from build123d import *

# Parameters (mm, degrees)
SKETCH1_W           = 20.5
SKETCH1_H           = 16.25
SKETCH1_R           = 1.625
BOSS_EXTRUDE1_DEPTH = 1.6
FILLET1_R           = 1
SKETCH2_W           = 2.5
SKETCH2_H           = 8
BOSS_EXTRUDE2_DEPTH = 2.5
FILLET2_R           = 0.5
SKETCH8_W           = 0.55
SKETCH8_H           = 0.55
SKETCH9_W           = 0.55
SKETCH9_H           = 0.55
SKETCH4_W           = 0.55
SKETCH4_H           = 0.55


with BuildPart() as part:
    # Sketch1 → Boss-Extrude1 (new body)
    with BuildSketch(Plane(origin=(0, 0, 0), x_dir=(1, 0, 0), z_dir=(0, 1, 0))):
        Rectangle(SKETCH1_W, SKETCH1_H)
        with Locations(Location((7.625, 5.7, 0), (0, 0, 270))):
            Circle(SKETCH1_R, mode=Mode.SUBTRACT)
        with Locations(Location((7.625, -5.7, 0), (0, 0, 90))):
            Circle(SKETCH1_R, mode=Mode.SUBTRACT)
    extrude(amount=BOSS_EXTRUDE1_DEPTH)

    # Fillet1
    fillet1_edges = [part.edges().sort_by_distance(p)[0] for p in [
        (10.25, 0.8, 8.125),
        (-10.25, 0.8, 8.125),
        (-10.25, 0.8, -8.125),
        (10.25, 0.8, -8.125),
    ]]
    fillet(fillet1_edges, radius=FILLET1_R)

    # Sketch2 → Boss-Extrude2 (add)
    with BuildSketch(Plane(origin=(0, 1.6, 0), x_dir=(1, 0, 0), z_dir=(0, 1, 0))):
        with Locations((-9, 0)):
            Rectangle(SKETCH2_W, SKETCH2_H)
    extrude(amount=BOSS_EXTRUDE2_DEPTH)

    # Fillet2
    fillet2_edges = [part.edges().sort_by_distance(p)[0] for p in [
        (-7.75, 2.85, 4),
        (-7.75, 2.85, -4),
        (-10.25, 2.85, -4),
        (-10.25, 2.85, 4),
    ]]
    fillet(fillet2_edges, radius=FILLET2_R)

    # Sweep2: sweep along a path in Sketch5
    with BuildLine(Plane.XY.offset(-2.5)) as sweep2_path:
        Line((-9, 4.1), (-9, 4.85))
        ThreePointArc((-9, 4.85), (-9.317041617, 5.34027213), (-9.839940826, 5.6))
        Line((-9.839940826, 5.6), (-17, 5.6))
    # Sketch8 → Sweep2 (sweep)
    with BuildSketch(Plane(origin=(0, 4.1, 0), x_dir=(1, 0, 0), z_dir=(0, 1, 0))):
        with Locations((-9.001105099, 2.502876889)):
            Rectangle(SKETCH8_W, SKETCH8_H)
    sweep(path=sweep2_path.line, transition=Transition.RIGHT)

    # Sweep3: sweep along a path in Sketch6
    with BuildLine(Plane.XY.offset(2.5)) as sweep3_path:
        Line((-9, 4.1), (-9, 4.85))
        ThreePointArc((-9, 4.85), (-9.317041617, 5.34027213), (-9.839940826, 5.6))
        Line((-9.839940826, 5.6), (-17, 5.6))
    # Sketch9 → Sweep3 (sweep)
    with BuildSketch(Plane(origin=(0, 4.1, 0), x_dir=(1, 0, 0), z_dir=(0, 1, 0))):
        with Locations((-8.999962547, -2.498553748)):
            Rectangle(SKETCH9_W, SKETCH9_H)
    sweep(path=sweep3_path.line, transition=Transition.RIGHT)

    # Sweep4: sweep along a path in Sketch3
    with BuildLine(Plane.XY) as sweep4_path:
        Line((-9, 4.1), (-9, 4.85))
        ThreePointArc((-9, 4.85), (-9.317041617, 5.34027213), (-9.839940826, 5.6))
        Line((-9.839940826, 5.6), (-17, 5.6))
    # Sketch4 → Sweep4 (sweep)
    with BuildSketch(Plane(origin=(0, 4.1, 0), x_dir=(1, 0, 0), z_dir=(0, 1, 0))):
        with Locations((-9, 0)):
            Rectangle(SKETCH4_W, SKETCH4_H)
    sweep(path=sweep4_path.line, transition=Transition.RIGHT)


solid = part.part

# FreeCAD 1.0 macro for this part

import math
import FreeCAD as App
import Part
import Sketcher
from FreeCAD import Vector


def edges_at(feature, points):
    """Names of the edges that pass closest to the given points."""
    edges = feature.Shape.Edges
    near = lambda p: min(range(len(edges)), key=lambda i: edges[i].distToShape(Part.Vertex(*p))[0])
    return sorted({f"Edge{near(p) + 1}" for p in points})


def add_polygon(sketch, points):
    """Adds a closed chain of lines whose ends are joined by coincident constraints."""
    first, n = sketch.GeometryCount, len(points)
    for a, b in zip(points, points[1:] + points[:1]):
        sketch.addGeometry(Part.LineSegment(App.Vector(*a, 0), App.Vector(*b, 0)), False)
    for i in range(n):
        sketch.addConstraint(Sketcher.Constraint("Coincident", first + i, 2, first + (i + 1) % n, 1))

doc = App.newDocument("Part")
body = doc.addObject("PartDesign::Body", "Body")

# Sketch on XZ plane
sketch1 = body.newObject("Sketcher::SketchObject", "Sketch")
sketch1.AttachmentSupport = (doc.getObject("XZ_Plane"), [""])
sketch1.MapMode = "FlatFace"
add_polygon(sketch1, [(-10.2, -8.1), (-10.2, 8.1), (10.2, 8.1), (10.2, -8.1)])  # lines 0-3
sketch1.addGeometry(Part.Circle(Vector(7.6, 5.7, 0), Vector(0, 0, 1), 1.6), False)  # 4
sketch1.addGeometry(Part.Circle(Vector(7.6, -5.7, 0), Vector(0, 0, 1), 1.6), False)  # 5
sketch1.addConstraint([
    Sketcher.Constraint("Vertical", 0),
    Sketcher.Constraint("Horizontal", 1),
    Sketcher.Constraint("Vertical", 2),
    Sketcher.Constraint("Horizontal", 3),
    Sketcher.Constraint("Equal", 4, 5),
    Sketcher.Constraint("Symmetric", 0, 2, 2, 2, -1, 1),
    Sketcher.Constraint("Symmetric", 4, 3, 5, 3, -1),
    Sketcher.Constraint("Diameter", 4, 3.25),
    Sketcher.Constraint("DistanceX", 1, 1, 1, 2, 20.5),
    Sketcher.Constraint("DistanceY", 0, 1, 0, 2, 16.25),
    Sketcher.Constraint("DistanceY", -1, 1, 4, 3, 5.7),
    Sketcher.Constraint("DistanceX", -1, 1, 4, 3, 7.625),
])
pad1 = body.newObject("PartDesign::Pad", "Pad")
pad1.Profile = sketch1
pad1.Length = 1.6
pad1.Reversed = True
doc.recompute()

fillet = body.newObject("PartDesign::Fillet", "Fillet")
fillet.Base = (pad1, edges_at(pad1, [
    (10.25, 0.8, 8.125),
    (-10.25, 0.8, 8.125),
    (-10.25, 0.8, -8.125),
    (10.25, 0.8, -8.125),
]))
fillet.Radius = 1

# Sketch on XZ plane
sketch2 = body.newObject("Sketcher::SketchObject", "Sketch001")
sketch2.AttachmentSupport = (doc.getObject("XZ_Plane"), [""])
sketch2.MapMode = "FlatFace"
sketch2.AttachmentOffset = App.Placement(Vector(0, 0, -1.6), App.Rotation())
add_polygon(sketch2, [(-10.2, -4), (-10.2, 4), (-7.8, 4), (-7.8, -4)])  # lines 0-3
sketch2.addConstraint([
    Sketcher.Constraint("Vertical", 0),
    Sketcher.Constraint("Horizontal", 1),
    Sketcher.Constraint("Vertical", 2),
    Sketcher.Constraint("Horizontal", 3),
    Sketcher.Constraint("DistanceY", 0, 1, 0, 2, 8.0),
    Sketcher.Constraint("DistanceX", 1, 1, 1, 2, 2.5),
    Sketcher.Constraint("DistanceY", -1, 1, 0, 2, 4.0),
    Sketcher.Constraint("DistanceX", 0, 2, -1, 1, 10.25),
])
pad2 = body.newObject("PartDesign::Pad", "Pad001")
pad2.Profile = sketch2
pad2.Length = 2.5
pad2.Reversed = True
doc.recompute()

fillet2 = body.newObject("PartDesign::Fillet", "Fillet001")
fillet2.Base = (pad2, edges_at(pad2, [
    (-7.75, 2.85, 4),
    (-7.75, 2.85, -4),
    (-10.25, 2.85, -4),
    (-10.25, 2.85, 4),
]))
fillet2.Radius = 0.5

# Sketch on XZ plane
sketch3 = body.newObject("Sketcher::SketchObject", "Sketch002")
sketch3.AttachmentSupport = (doc.getObject("XZ_Plane"), [""])
sketch3.MapMode = "FlatFace"
sketch3.AttachmentOffset = App.Placement(Vector(0, 0, -4.1), App.Rotation())
add_polygon(sketch3, [(-9.3, -2.8), (-9.3, -2.2), (-8.7, -2.2), (-8.7, -2.8)])  # lines 0-3
sketch3.addConstraint([
    Sketcher.Constraint("Vertical", 0),
    Sketcher.Constraint("Horizontal", 1),
    Sketcher.Constraint("Vertical", 2),
    Sketcher.Constraint("Horizontal", 3),
    Sketcher.Constraint("Equal", 3, 0),
    Sketcher.Constraint("DistanceX", 1, 1, 1, 2, 0.55),
    Sketcher.Constraint("DistanceX", 0, 2, -1, 1, 9.276105),
    Sketcher.Constraint("DistanceY", 0, 2, -1, 1, 2.227877),
])

# Sketch on XY plane
sketch4 = body.newObject("Sketcher::SketchObject", "Sketch003")
sketch4.AttachmentSupport = (doc.getObject("XY_Plane"), [""])
sketch4.MapMode = "FlatFace"
sketch4.AttachmentOffset = App.Placement(Vector(0, 0, -2.5), App.Rotation())
sketch4.addGeometry([
    Part.LineSegment(Vector(-9, 4.1, 0), Vector(-9, 4.8, 0)),
    Part.ArcOfCircle(Part.Circle(Vector(-10.1, 4.5, 0), Vector(0, 0, 1), 1.1), math.radians(18), math.radians(79)),
    Part.LineSegment(Vector(-9.8, 5.6, 0), Vector(-17, 5.6, 0)),
], False)
sketch4.addConstraint([
    Sketcher.Constraint("Coincident", 0, 2, 1, 1),
    Sketcher.Constraint("Coincident", 1, 2, 2, 1),
    Sketcher.Constraint("Vertical", 0),
    Sketcher.Constraint("Horizontal", 2),
    Sketcher.Constraint("DistanceX", 0, 1, -1, 1, 9.0),
    Sketcher.Constraint("DistanceX", 2, 2, -1, 1, 17.0),
    Sketcher.Constraint("DistanceY", 0, 1, 0, 2, 0.75),
    Sketcher.Constraint("DistanceY", -1, 1, 0, 1, 4.1),
    Sketcher.Constraint("DistanceY", -1, 1, 1, 2, 5.6),
    Sketcher.Constraint("Radius", 1, 1.102907),
    Sketcher.Constraint("DistanceX", 2, 2, 2, 1, 7.160059),
])
doc.recompute()

additivepipe = body.newObject("PartDesign::AdditivePipe", "AdditivePipe")
additivepipe.Profile = sketch3
additivepipe.Spine = (sketch4, ["Edge1", "Edge2", "Edge3"])
additivepipe.Transition = "Right corner"

# Sketch on XZ plane
sketch5 = body.newObject("Sketcher::SketchObject", "Sketch004")
sketch5.AttachmentSupport = (doc.getObject("XZ_Plane"), [""])
sketch5.MapMode = "FlatFace"
sketch5.AttachmentOffset = App.Placement(Vector(0, 0, -4.1), App.Rotation())
add_polygon(sketch5, [(-9.3, 2.2), (-9.3, 2.8), (-8.7, 2.8), (-8.7, 2.2)])  # lines 0-3
sketch5.addConstraint([
    Sketcher.Constraint("Vertical", 0),
    Sketcher.Constraint("Horizontal", 1),
    Sketcher.Constraint("Vertical", 2),
    Sketcher.Constraint("Horizontal", 3),
    Sketcher.Constraint("Equal", 3, 0),
    Sketcher.Constraint("DistanceX", 1, 1, 1, 2, 0.55),
    Sketcher.Constraint("DistanceX", 0, 2, -1, 1, 9.274963),
    Sketcher.Constraint("DistanceY", -1, 1, 0, 2, 2.773554),
])

# Sketch on XY plane
sketch6 = body.newObject("Sketcher::SketchObject", "Sketch005")
sketch6.AttachmentSupport = (doc.getObject("XY_Plane"), [""])
sketch6.MapMode = "FlatFace"
sketch6.AttachmentOffset = App.Placement(Vector(0, 0, 2.5), App.Rotation())
sketch6.addGeometry([
    Part.LineSegment(Vector(-9, 4.1, 0), Vector(-9, 4.8, 0)),
    Part.ArcOfCircle(Part.Circle(Vector(-10.1, 4.5, 0), Vector(0, 0, 1), 1.1), math.radians(18), math.radians(79)),
    Part.LineSegment(Vector(-9.8, 5.6, 0), Vector(-17, 5.6, 0)),
], False)
sketch6.addConstraint([
    Sketcher.Constraint("Coincident", 0, 2, 1, 1),
    Sketcher.Constraint("Coincident", 1, 2, 2, 1),
    Sketcher.Constraint("Vertical", 0),
    Sketcher.Constraint("Horizontal", 2),
    Sketcher.Constraint("DistanceX", 0, 1, -1, 1, 9.0),
    Sketcher.Constraint("DistanceX", 2, 2, -1, 1, 17.0),
    Sketcher.Constraint("DistanceY", 0, 1, 0, 2, 0.75),
    Sketcher.Constraint("DistanceY", -1, 1, 0, 1, 4.1),
    Sketcher.Constraint("DistanceY", -1, 1, 1, 2, 5.6),
    Sketcher.Constraint("Radius", 1, 1.102907),
    Sketcher.Constraint("DistanceX", 2, 2, 2, 1, 7.160059),
])
doc.recompute()

additivepipe2 = body.newObject("PartDesign::AdditivePipe", "AdditivePipe001")
additivepipe2.Profile = sketch5
additivepipe2.Spine = (sketch6, ["Edge1", "Edge2", "Edge3"])
additivepipe2.Transition = "Right corner"

# Sketch on XZ plane
sketch7 = body.newObject("Sketcher::SketchObject", "Sketch006")
sketch7.AttachmentSupport = (doc.getObject("XZ_Plane"), [""])
sketch7.MapMode = "FlatFace"
sketch7.AttachmentOffset = App.Placement(Vector(0, 0, -4.1), App.Rotation())
add_polygon(sketch7, [(-9.3, -0.3), (-9.3, 0.3), (-8.7, 0.3), (-8.7, -0.3)])  # lines 0-3
sketch7.addConstraint([
    Sketcher.Constraint("Vertical", 0),
    Sketcher.Constraint("Horizontal", 1),
    Sketcher.Constraint("Vertical", 2),
    Sketcher.Constraint("Horizontal", 3),
    Sketcher.Constraint("Equal", 3, 0),
    Sketcher.Constraint("DistanceX", 1, 1, 1, 2, 0.55),
    Sketcher.Constraint("DistanceX", 0, 2, -1, 1, 9.275),
    Sketcher.Constraint("DistanceY", -1, 1, 0, 2, 0.275),
])

# Sketch on XY plane
sketch8 = body.newObject("Sketcher::SketchObject", "Sketch007")
sketch8.AttachmentSupport = (doc.getObject("XY_Plane"), [""])
sketch8.MapMode = "FlatFace"
sketch8.addGeometry([
    Part.LineSegment(Vector(-9, 4.1, 0), Vector(-9, 4.8, 0)),
    Part.ArcOfCircle(Part.Circle(Vector(-10.1, 4.5, 0), Vector(0, 0, 1), 1.1), math.radians(18), math.radians(79)),
    Part.LineSegment(Vector(-9.8, 5.6, 0), Vector(-17, 5.6, 0)),
], False)
sketch8.addConstraint([
    Sketcher.Constraint("Coincident", 0, 2, 1, 1),
    Sketcher.Constraint("Coincident", 1, 2, 2, 1),
    Sketcher.Constraint("Vertical", 0),
    Sketcher.Constraint("Horizontal", 2),
    Sketcher.Constraint("DistanceX", 0, 1, -1, 1, 9.0),
    Sketcher.Constraint("DistanceX", 2, 2, -1, 1, 17.0),
    Sketcher.Constraint("DistanceY", 0, 1, 0, 2, 0.75),
    Sketcher.Constraint("DistanceY", -1, 1, 0, 1, 4.1),
    Sketcher.Constraint("DistanceY", -1, 1, 1, 2, 5.6),
    Sketcher.Constraint("Radius", 1, 1.102907),
    Sketcher.Constraint("DistanceX", 2, 2, 2, 1, 7.160059),
])
doc.recompute()

additivepipe3 = body.newObject("PartDesign::AdditivePipe", "AdditivePipe002")
additivepipe3.Profile = sketch7
additivepipe3.Spine = (sketch8, ["Edge1", "Edge2", "Edge3"])
additivepipe3.Transition = "Right corner"

doc.recompute()
